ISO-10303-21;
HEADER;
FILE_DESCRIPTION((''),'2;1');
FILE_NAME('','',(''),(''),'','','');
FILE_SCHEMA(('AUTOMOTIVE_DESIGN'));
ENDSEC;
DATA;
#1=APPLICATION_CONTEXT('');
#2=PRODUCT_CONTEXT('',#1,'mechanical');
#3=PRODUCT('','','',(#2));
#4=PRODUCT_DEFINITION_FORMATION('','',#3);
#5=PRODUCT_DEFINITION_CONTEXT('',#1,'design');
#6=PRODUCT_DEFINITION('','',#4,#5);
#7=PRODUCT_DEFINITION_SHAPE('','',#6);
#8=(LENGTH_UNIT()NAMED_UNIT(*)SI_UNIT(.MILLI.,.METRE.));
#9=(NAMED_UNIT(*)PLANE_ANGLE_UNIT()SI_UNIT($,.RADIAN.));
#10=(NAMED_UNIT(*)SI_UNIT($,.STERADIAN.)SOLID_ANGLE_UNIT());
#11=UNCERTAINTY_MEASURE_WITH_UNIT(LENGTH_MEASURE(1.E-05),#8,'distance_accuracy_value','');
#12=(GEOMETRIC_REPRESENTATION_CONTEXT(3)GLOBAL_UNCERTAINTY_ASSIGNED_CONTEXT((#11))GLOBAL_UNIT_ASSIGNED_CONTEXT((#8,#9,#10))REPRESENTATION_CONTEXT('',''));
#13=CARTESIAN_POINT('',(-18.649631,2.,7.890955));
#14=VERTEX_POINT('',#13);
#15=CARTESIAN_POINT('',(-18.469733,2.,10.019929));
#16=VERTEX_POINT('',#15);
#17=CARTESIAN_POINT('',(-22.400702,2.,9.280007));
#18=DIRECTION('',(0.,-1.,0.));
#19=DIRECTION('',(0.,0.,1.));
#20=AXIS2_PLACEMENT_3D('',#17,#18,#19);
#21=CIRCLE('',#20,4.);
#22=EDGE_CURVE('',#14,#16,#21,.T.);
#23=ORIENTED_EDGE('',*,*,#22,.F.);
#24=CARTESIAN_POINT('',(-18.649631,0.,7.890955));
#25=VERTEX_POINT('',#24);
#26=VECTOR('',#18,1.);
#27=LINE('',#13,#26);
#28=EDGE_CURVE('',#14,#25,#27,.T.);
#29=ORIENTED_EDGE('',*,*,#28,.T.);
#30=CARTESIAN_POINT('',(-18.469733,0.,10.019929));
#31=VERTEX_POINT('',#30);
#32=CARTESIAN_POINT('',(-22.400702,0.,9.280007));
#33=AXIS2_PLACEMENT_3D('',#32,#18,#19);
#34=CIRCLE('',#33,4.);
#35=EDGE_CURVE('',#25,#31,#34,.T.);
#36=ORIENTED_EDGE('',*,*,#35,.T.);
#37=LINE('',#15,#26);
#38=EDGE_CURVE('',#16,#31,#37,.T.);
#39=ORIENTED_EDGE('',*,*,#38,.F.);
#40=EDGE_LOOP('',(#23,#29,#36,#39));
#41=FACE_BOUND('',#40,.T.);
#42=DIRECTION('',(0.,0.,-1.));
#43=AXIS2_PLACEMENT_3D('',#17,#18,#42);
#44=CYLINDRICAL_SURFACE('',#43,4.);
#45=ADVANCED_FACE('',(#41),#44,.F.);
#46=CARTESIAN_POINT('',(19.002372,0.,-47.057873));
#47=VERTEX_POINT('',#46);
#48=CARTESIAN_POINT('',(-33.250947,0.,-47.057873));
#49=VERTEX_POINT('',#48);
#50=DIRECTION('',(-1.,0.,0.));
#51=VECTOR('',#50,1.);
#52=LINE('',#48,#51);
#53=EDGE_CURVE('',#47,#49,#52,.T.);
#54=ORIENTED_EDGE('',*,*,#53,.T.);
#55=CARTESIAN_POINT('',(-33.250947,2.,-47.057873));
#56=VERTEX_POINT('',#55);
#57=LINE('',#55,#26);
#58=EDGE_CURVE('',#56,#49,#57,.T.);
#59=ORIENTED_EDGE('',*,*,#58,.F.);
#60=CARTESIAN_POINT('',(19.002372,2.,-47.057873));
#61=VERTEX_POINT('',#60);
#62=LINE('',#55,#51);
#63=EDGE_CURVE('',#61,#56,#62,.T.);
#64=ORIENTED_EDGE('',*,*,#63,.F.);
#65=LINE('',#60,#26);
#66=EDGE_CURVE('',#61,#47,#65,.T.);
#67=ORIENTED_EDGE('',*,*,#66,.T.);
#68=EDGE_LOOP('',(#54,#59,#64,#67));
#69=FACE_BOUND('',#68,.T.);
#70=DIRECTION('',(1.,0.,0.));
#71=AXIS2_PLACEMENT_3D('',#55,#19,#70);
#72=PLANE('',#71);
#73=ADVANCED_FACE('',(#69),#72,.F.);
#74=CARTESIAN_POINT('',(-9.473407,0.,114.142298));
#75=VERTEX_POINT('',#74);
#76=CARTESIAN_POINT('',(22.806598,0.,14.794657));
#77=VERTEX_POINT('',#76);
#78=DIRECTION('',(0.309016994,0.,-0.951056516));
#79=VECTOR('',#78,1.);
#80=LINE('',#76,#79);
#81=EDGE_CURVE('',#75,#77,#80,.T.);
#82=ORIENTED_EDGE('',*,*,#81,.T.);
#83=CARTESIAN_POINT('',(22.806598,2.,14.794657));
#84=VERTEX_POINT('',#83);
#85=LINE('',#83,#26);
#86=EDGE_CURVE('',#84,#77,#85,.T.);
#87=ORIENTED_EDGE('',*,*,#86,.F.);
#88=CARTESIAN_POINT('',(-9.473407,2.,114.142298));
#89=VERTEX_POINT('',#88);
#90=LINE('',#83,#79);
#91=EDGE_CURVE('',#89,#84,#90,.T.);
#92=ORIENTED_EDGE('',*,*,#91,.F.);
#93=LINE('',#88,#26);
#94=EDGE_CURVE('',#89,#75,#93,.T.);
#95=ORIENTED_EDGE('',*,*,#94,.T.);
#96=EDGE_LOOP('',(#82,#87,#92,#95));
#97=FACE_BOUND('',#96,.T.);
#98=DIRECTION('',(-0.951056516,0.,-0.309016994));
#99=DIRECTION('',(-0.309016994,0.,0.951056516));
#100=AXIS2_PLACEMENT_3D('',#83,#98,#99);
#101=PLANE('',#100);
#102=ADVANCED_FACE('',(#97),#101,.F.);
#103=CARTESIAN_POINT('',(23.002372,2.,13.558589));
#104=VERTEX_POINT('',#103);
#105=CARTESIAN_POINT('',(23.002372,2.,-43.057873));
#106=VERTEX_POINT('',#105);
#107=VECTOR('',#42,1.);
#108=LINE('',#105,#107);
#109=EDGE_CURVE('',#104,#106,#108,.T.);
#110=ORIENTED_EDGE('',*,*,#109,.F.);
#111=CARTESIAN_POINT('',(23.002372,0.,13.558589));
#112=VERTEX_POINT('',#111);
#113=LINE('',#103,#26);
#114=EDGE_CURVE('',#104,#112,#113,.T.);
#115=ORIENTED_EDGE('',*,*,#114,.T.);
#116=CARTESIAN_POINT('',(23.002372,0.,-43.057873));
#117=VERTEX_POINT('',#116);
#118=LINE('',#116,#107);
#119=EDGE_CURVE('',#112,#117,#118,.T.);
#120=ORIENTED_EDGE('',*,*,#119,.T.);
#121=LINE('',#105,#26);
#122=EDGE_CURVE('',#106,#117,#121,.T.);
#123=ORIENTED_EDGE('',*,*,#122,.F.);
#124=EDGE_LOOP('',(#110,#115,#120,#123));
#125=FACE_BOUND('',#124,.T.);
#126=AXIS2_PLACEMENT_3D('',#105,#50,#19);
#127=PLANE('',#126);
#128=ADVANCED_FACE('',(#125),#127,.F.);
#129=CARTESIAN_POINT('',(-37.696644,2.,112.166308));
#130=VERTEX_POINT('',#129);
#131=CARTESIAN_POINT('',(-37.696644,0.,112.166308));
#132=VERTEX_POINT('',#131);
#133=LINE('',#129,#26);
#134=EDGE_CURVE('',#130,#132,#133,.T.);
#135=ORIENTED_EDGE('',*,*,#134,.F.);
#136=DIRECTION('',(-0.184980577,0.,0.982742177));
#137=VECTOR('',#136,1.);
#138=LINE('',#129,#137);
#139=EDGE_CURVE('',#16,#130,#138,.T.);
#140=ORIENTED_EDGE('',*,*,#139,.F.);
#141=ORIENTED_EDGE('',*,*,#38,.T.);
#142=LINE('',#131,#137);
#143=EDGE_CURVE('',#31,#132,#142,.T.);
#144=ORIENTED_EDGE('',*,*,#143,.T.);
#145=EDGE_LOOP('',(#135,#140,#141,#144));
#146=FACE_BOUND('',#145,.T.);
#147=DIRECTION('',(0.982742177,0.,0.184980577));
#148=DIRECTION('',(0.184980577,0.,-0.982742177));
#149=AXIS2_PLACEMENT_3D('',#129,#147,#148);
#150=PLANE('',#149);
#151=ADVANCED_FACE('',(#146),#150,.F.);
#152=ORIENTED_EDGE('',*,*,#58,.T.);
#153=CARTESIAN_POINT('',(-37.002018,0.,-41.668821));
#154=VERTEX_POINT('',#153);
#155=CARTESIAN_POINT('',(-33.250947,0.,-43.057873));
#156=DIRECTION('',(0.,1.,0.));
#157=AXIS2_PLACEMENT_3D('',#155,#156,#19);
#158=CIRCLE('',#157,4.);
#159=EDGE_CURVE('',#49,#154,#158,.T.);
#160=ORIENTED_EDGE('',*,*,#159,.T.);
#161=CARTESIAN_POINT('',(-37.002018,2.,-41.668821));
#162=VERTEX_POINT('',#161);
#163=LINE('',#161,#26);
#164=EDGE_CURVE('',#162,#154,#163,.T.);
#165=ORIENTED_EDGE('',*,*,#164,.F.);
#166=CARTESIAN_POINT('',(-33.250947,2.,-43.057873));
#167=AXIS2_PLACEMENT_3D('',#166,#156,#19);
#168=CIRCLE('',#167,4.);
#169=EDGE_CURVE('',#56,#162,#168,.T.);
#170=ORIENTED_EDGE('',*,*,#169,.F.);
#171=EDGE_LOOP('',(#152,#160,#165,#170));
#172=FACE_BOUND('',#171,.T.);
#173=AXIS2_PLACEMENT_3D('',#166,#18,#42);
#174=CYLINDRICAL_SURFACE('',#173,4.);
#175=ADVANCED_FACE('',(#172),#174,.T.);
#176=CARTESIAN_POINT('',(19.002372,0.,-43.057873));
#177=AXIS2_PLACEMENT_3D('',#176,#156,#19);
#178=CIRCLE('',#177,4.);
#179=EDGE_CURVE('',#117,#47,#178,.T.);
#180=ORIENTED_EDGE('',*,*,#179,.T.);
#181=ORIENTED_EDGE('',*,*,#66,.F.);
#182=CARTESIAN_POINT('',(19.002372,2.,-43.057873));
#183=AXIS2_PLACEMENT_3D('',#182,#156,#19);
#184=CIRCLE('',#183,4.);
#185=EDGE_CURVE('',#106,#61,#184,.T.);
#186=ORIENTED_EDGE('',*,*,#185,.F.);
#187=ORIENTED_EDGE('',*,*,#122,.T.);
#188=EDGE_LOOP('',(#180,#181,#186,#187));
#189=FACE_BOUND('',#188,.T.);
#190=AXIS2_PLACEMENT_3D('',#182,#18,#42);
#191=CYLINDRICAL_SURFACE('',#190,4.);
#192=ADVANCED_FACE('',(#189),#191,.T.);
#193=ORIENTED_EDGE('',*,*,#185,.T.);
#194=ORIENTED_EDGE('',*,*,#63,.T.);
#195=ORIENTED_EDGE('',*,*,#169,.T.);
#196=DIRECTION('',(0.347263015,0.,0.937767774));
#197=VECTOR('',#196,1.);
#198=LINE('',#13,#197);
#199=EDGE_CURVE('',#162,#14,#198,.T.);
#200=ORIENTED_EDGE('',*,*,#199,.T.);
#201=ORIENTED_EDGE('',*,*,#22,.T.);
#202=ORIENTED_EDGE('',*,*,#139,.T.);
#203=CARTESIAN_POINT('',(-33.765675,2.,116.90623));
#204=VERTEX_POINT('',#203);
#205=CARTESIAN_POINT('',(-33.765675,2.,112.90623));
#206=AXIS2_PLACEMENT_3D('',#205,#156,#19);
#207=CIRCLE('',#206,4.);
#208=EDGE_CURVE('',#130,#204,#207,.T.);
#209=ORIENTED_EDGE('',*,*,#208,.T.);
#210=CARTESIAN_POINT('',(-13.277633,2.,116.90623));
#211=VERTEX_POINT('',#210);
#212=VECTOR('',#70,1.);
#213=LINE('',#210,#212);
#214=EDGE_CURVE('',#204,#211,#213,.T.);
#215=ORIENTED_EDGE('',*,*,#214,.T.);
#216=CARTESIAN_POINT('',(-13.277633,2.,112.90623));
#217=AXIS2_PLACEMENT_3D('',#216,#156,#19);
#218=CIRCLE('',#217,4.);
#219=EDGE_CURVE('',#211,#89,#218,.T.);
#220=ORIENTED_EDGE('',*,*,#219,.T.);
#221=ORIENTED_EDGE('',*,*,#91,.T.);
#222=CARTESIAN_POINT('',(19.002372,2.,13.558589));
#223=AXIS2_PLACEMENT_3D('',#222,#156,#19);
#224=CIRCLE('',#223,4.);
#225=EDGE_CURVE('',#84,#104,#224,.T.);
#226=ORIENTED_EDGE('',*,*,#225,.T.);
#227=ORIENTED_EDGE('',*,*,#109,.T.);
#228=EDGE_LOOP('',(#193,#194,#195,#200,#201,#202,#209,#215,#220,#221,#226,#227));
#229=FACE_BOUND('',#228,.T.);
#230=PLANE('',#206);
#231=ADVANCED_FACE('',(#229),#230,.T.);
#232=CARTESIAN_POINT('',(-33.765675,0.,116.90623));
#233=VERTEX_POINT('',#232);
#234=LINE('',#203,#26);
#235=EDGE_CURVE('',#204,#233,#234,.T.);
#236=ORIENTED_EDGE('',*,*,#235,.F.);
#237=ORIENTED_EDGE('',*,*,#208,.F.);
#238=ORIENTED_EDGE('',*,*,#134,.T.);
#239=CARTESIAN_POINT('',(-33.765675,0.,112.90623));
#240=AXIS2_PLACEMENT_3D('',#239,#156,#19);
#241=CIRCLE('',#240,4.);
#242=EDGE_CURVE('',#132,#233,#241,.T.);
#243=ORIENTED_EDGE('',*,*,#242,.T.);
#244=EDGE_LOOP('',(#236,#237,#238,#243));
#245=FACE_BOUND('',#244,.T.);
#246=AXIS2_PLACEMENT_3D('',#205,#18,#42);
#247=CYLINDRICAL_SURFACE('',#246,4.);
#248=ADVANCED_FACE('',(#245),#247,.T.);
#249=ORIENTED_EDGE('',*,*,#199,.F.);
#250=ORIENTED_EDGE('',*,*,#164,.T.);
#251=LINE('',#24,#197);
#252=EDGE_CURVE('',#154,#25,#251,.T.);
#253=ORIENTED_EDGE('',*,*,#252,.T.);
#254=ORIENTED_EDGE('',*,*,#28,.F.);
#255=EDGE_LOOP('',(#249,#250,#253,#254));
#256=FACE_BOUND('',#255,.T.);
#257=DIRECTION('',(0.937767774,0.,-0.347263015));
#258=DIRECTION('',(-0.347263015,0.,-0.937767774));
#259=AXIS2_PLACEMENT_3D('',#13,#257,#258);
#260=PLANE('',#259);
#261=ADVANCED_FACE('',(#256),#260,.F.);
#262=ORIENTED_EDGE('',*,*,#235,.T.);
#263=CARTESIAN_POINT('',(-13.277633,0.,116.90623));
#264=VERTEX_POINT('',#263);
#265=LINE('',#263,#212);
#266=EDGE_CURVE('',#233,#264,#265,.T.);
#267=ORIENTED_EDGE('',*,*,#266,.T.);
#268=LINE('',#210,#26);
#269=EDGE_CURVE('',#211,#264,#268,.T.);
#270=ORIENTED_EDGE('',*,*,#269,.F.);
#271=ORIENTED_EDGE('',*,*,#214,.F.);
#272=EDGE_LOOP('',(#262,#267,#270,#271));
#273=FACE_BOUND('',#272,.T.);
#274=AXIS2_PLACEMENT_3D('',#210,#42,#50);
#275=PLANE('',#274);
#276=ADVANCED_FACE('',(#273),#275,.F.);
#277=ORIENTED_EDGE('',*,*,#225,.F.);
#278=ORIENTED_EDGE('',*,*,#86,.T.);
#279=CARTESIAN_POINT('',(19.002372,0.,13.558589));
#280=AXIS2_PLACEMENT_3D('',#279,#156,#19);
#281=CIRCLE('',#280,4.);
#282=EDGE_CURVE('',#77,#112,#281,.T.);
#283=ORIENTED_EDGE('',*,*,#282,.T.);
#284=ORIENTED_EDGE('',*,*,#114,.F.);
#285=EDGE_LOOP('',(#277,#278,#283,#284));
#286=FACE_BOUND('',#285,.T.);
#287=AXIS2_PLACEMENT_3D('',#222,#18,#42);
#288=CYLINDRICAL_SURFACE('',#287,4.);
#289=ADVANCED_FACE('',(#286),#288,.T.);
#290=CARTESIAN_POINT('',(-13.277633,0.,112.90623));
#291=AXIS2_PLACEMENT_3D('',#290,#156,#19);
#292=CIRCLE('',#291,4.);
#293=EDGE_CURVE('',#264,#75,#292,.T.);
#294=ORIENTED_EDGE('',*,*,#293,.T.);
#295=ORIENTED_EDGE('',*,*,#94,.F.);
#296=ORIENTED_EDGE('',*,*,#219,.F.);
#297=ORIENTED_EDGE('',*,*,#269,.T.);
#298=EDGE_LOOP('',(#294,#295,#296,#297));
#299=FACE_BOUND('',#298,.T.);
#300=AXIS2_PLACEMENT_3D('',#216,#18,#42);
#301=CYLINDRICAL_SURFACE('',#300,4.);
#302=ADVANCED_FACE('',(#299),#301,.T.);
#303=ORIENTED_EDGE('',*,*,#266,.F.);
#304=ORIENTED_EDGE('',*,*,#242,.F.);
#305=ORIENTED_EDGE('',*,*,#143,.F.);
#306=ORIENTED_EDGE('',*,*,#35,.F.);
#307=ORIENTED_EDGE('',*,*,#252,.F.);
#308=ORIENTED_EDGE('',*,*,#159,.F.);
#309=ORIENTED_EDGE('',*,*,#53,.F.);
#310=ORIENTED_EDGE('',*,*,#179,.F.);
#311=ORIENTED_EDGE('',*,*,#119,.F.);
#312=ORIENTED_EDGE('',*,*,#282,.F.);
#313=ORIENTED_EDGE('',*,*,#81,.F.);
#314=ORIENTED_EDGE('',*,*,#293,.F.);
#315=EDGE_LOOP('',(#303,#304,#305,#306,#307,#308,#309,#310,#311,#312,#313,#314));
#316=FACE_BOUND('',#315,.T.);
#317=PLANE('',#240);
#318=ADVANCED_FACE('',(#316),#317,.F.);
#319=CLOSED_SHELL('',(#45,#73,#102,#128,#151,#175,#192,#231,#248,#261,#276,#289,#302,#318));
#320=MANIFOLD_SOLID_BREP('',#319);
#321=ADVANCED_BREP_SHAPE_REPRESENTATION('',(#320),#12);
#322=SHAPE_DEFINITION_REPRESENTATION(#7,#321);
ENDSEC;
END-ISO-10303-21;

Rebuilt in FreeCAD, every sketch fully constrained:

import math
import FreeCAD as App
import Part
import Sketcher
from FreeCAD import Vector
Q = App.Units.Quantity

doc = App.newDocument("Part")
body = doc.addObject("PartDesign::Body", "Body")

# Sketch on XZ plane
sketch1 = body.newObject("Sketcher::SketchObject", "Sketch")
sketch1.AttachmentSupport = (doc.getObject("XZ_Plane"), [""])
sketch1.MapMode = "FlatFace"
sketch1.addGeometry([
    Part.LineSegment(Vector(-18.469733, 10.019929, 0), Vector(-37.696644, 112.166308, 0)),  # 0
    Part.ArcOfCircle(Part.Circle(Vector(-33.765675, 112.90623, 0), Vector(0, 0, 1), 4), math.radians(90), math.radians(190.66)),  # 1
    Part.LineSegment(Vector(-33.765675, 116.90623, 0), Vector(-13.277633, 116.90623, 0)),  # 2
    Part.ArcOfCircle(Part.Circle(Vector(-13.277633, 112.90623, 0), Vector(0, 0, 1), 4), math.radians(18), math.radians(90)),  # 3
    Part.LineSegment(Vector(-9.473407, 114.142298, 0), Vector(22.806598, 14.794657, 0)),  # 4
    Part.ArcOfCircle(Part.Circle(Vector(19.002372, 13.558589, 0), Vector(0, 0, 1), 4), math.radians(0), math.radians(18)),  # 5
    Part.LineSegment(Vector(23.002372, 13.558589, 0), Vector(23.002372, -43.057873, 0)),  # 6
    Part.ArcOfCircle(Part.Circle(Vector(19.002372, -43.057873, 0), Vector(0, 0, 1), 4), math.radians(-90), math.radians(0)),  # 7
    Part.LineSegment(Vector(19.002372, -47.057873, 0), Vector(-33.250947, -47.057873, 0)),  # 8
    Part.ArcOfCircle(Part.Circle(Vector(-33.250947, -43.057873, 0), Vector(0, 0, 1), 4), math.radians(159.68), math.radians(270)),  # 9
    Part.LineSegment(Vector(-37.002018, -41.668821, 0), Vector(-18.649631, 7.890955, 0)),  # 10
    Part.ArcOfCircle(Part.Circle(Vector(-22.400702, 9.280007, 0), Vector(0, 0, 1), 4), math.radians(-20.32), math.radians(10.66)),  # 11
], False)
sketch1.addConstraint([
    Sketcher.Constraint("Tangent", 0, 2, 1, 2),
    Sketcher.Constraint("Tangent", 1, 1, 2, 1),
    Sketcher.Constraint("Tangent", 2, 2, 3, 2),
    Sketcher.Constraint("Tangent", 3, 1, 4, 1),
    Sketcher.Constraint("Tangent", 4, 2, 5, 2),
    Sketcher.Constraint("Tangent", 5, 1, 6, 1),
    Sketcher.Constraint("Tangent", 6, 2, 7, 2),
    Sketcher.Constraint("Tangent", 7, 1, 8, 1),
    Sketcher.Constraint("Tangent", 8, 2, 9, 2),
    Sketcher.Constraint("Tangent", 9, 1, 10, 1),
    Sketcher.Constraint("Tangent", 10, 2, 11, 1),
    Sketcher.Constraint("Tangent", 11, 2, 0, 1),
    Sketcher.Constraint("Horizontal", 2),
    Sketcher.Constraint("Vertical", 6),
    Sketcher.Constraint("Horizontal", 8),
    Sketcher.Constraint("Equal", 1, 3),
    Sketcher.Constraint("Equal", 3, 5),
    Sketcher.Constraint("Equal", 5, 7),
    Sketcher.Constraint("Equal", 7, 9),
    Sketcher.Constraint("Equal", 9, 11),
    Sketcher.Constraint("Radius", 1, Q("4 mm")),
    Sketcher.Constraint("Angle", 4, Q("-72 deg")),
    Sketcher.Constraint("Angle", 0, Q("100.66 deg")),
    Sketcher.Constraint("Angle", 10, Q("69.68 deg")),
    Sketcher.Constraint("DistanceX", 2, 1, 2, 2, Q("20.488042 mm")),
    Sketcher.Constraint("DistanceX", 8, 2, 8, 1, Q("52.253319 mm")),
    Sketcher.Constraint("DistanceX", 11, 3, -1, 1, Q("22.400702 mm")),
    Sketcher.Constraint("DistanceY", -1, 1, 3, 1, Q("114.142298 mm")),
    Sketcher.Constraint("DistanceX", -1, 1, 4, 2, Q("22.806598 mm")),
    Sketcher.Constraint("DistanceY", 11, 3, 0, 2, Q("102.886301 mm")),
])
pad1 = body.newObject("PartDesign::Pad", "Pad")
pad1.Profile = sketch1
pad1.Length = 2
pad1.Reversed = True

doc.recompute()
